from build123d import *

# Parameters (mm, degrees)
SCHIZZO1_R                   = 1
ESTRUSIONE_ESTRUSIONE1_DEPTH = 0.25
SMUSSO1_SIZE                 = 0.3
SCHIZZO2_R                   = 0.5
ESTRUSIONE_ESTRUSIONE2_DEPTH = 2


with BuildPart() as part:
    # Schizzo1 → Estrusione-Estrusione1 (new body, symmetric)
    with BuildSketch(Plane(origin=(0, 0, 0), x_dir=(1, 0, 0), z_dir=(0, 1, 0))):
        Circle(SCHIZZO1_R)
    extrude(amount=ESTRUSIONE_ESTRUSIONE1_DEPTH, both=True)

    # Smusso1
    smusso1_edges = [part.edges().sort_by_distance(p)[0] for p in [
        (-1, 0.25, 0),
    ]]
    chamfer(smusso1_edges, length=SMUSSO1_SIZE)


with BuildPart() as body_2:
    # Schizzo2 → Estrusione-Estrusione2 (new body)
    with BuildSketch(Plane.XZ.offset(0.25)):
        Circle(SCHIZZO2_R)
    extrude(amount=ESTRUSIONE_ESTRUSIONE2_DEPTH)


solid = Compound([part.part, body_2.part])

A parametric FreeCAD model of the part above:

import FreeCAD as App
import Part
import Sketcher
Q = App.Units.Quantity


def edges_at(feature, points):
    """Names of the edges that pass closest to the given points."""
    edges = feature.Shape.Edges
    near = lambda p: min(range(len(edges)), key=lambda i: edges[i].distToShape(Part.Vertex(*p))[0])
    return sorted({f"Edge{near(p) + 1}" for p in points})

doc = App.newDocument("Part")
params = doc.addObject("Spreadsheet::Sheet", "Params")
for row, (alias, value) in enumerate([
    ("sketch1_diameter", "2 mm"),
    ("pad1_length", "0.5 mm"),
    ("chamfer_size", "0.3 mm"),
    ("sketch2_diameter", "1 mm"),
    ("pad2_length", "2 mm"),
], start=1):
    params.set(f"A{row}", alias)
    params.set(f"B{row}", "=" + value)
    params.setAlias(f"B{row}", alias)

body = doc.addObject("PartDesign::Body", "Body")

# Sketch on XZ plane
sketch1 = body.newObject("Sketcher::SketchObject", "Sketch")
sketch1.AttachmentSupport = (doc.getObject("XZ_Plane"), [""])
sketch1.MapMode = "FlatFace"
sketch1.addGeometry(Part.Circle(App.Vector(0, 0, 0), App.Vector(0, 0, 1), 1), False)
sketch1.addConstraint([
    Sketcher.Constraint("Coincident", 0, 3, -1, 1),
    Sketcher.Constraint("Diameter", 0, Q("2 mm")),
])
sketch1.setExpression("Constraints[1]", "Params.sketch1_diameter")
pad1 = body.newObject("PartDesign::Pad", "Pad")
pad1.Profile = sketch1
pad1.setExpression("Length", "Params.pad1_length")
pad1.Midplane = True
doc.recompute()

chamfer = body.newObject("PartDesign::Chamfer", "Chamfer")
chamfer.Base = (pad1, edges_at(pad1, [(-1, 0.25, 0)]))
chamfer.setExpression("Size", "Params.chamfer_size")
body2 = doc.addObject("PartDesign::Body", "Body001")

# Sketch on XZ plane
sketch2 = body2.newObject("Sketcher::SketchObject", "Sketch001")
sketch2.AttachmentSupport = (doc.getObject("XZ_Plane001"), [""])
sketch2.MapMode = "FlatFace"
sketch2.AttachmentOffset = App.Placement(App.Vector(0, 0, 0.25), App.Rotation())
sketch2.addGeometry(Part.Circle(App.Vector(0, 0, 0), App.Vector(0, 0, 1), 0.5), False)
sketch2.addConstraint([
    Sketcher.Constraint("Coincident", 0, 3, -1, 1),
    Sketcher.Constraint("Diameter", 0, Q("1 mm")),
])
sketch2.setExpression("Constraints[1]", "Params.sketch2_diameter")
pad2 = body2.newObject("PartDesign::Pad", "Pad001")
pad2.Profile = sketch2
pad2.setExpression("Length", "Params.pad2_length")

doc.recompute()
